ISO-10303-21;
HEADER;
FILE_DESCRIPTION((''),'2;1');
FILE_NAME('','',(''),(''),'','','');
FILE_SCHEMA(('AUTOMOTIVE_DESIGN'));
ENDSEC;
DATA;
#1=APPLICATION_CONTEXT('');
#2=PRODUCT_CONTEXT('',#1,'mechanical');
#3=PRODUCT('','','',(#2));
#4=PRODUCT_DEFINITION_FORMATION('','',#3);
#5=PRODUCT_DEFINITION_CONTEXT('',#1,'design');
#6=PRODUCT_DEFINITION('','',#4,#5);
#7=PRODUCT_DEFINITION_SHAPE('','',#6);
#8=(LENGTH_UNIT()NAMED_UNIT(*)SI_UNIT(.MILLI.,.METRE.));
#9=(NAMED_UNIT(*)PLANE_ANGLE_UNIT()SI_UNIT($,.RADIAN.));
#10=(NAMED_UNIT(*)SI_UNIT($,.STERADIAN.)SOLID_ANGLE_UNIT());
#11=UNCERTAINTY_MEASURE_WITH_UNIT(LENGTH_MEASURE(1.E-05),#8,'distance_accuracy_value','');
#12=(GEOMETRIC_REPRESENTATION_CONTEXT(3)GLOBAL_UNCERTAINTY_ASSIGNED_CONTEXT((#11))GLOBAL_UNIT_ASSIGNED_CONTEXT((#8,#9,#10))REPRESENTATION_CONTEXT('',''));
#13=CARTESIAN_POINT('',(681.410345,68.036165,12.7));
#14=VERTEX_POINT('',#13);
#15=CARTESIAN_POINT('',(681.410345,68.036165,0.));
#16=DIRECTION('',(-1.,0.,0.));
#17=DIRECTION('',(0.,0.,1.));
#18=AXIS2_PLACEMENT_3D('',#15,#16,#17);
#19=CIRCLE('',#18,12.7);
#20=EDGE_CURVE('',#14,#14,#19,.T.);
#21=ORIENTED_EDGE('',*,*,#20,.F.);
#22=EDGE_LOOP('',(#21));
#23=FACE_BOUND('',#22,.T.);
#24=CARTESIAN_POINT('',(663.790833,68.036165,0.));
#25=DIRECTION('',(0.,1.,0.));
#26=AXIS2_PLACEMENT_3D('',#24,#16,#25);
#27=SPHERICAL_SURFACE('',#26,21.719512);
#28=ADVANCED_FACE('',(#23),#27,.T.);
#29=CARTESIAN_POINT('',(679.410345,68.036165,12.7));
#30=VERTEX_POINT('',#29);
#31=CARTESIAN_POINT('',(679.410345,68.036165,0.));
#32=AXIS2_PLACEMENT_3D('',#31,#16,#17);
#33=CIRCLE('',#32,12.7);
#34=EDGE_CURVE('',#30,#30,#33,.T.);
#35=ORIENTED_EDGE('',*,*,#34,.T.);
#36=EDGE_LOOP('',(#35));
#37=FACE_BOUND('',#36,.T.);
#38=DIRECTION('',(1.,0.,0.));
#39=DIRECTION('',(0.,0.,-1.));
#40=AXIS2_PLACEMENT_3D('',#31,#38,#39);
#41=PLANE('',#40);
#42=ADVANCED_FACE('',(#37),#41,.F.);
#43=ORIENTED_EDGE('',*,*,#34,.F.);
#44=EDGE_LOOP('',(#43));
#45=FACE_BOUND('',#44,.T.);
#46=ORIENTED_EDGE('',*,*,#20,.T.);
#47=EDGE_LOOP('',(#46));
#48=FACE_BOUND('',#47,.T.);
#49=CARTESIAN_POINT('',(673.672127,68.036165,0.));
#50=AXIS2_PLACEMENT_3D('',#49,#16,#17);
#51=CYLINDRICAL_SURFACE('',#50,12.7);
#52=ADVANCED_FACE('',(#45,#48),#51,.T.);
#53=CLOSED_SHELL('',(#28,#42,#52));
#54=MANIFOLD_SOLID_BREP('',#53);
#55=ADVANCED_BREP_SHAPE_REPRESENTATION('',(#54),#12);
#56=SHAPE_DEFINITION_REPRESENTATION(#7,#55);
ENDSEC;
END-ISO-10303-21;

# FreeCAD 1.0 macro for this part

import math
import FreeCAD as App
import Part
import Sketcher

doc = App.newDocument("Part")
params = doc.addObject("Spreadsheet::Sheet", "Params")
for row, (alias, value) in enumerate([
    ("sketch1_width", "2 mm"),
    ("sketch1_width2", "6.1 mm"),
    ("sketch1_height", "12.7 mm"),
    ("revolution_angle", "360 deg"),
], start=1):
    params.set(f"A{row}", alias)
    params.set(f"B{row}", "=" + value)
    params.setAlias(f"B{row}", alias)

body = doc.addObject("PartDesign::Body", "Body")

sketch1 = body.newObject("Sketcher::SketchObject", "Sketch")
sketch1.AttachmentSupport = (doc.getObject("XY_Plane"), [""])
sketch1.MapMode = "FlatFace"
sketch1.addGeometry(Part.LineSegment(App.Vector(679.4, 80.7, 0), App.Vector(679.4, 68, 0)), False)
sketch1.addGeometry(Part.LineSegment(App.Vector(679.4, 68, 0), App.Vector(685.5, 68, 0)), False)
sketch1.addGeometry(Part.ArcOfCircle(Part.Circle(App.Vector(663.8, 68, 0), App.Vector(0, 0, 1), 21.7), math.radians(0), math.radians(36)), False)
sketch1.addGeometry(Part.LineSegment(App.Vector(681.4, 80.7, 0), App.Vector(679.4, 80.7, 0)), False)
sketch1.addGeometry(Part.LineSegment(App.Vector(663.8, 68, 0), App.Vector(685.5, 68, 0)), True)
sketch1.addConstraint(Sketcher.Constraint("Coincident", 0, 2, 1, 1))
sketch1.addConstraint(Sketcher.Constraint("Coincident", 1, 2, 2, 1))
sketch1.addConstraint(Sketcher.Constraint("Coincident", 2, 2, 3, 1))
sketch1.addConstraint(Sketcher.Constraint("Coincident", 3, 2, 0, 1))
sketch1.addConstraint(Sketcher.Constraint("Vertical", 0))
sketch1.addConstraint(Sketcher.Constraint("Horizontal", 1))
sketch1.addConstraint(Sketcher.Constraint("Horizontal", 3))
sketch1.addConstraint(Sketcher.Constraint("Horizontal", 4))
sketch1.addConstraint(Sketcher.Constraint("Coincident", 4, 1, 2, 3))
sketch1.addConstraint(Sketcher.Constraint("Coincident", 4, 2, 1, 2))
sketch1.addConstraint(Sketcher.Constraint("DistanceX", 3, 2, 3, 1, 2.0))
sketch1.addConstraint(Sketcher.Constraint("DistanceX", 1, 1, 1, 2, 6.1))
sketch1.addConstraint(Sketcher.Constraint("DistanceY", 0, 2, 0, 1, 12.7))
sketch1.addConstraint(Sketcher.Constraint("DistanceX", -1, 1, 2, 3, 663.790833))
sketch1.addConstraint(Sketcher.Constraint("DistanceY", -1, 1, 2, 3, 68.036165))
sketch1.setExpression("Constraints[10]", "Params.sketch1_width")
sketch1.setExpression("Constraints[11]", "Params.sketch1_width2")
sketch1.setExpression("Constraints[12]", "Params.sketch1_height")
revolution = body.newObject("PartDesign::Revolution", "Revolution")
revolution.Profile = sketch1
revolution.ReferenceAxis = (sketch1, ["Axis0"])
revolution.setExpression("Angle", "Params.revolution_angle")

doc.recompute()
